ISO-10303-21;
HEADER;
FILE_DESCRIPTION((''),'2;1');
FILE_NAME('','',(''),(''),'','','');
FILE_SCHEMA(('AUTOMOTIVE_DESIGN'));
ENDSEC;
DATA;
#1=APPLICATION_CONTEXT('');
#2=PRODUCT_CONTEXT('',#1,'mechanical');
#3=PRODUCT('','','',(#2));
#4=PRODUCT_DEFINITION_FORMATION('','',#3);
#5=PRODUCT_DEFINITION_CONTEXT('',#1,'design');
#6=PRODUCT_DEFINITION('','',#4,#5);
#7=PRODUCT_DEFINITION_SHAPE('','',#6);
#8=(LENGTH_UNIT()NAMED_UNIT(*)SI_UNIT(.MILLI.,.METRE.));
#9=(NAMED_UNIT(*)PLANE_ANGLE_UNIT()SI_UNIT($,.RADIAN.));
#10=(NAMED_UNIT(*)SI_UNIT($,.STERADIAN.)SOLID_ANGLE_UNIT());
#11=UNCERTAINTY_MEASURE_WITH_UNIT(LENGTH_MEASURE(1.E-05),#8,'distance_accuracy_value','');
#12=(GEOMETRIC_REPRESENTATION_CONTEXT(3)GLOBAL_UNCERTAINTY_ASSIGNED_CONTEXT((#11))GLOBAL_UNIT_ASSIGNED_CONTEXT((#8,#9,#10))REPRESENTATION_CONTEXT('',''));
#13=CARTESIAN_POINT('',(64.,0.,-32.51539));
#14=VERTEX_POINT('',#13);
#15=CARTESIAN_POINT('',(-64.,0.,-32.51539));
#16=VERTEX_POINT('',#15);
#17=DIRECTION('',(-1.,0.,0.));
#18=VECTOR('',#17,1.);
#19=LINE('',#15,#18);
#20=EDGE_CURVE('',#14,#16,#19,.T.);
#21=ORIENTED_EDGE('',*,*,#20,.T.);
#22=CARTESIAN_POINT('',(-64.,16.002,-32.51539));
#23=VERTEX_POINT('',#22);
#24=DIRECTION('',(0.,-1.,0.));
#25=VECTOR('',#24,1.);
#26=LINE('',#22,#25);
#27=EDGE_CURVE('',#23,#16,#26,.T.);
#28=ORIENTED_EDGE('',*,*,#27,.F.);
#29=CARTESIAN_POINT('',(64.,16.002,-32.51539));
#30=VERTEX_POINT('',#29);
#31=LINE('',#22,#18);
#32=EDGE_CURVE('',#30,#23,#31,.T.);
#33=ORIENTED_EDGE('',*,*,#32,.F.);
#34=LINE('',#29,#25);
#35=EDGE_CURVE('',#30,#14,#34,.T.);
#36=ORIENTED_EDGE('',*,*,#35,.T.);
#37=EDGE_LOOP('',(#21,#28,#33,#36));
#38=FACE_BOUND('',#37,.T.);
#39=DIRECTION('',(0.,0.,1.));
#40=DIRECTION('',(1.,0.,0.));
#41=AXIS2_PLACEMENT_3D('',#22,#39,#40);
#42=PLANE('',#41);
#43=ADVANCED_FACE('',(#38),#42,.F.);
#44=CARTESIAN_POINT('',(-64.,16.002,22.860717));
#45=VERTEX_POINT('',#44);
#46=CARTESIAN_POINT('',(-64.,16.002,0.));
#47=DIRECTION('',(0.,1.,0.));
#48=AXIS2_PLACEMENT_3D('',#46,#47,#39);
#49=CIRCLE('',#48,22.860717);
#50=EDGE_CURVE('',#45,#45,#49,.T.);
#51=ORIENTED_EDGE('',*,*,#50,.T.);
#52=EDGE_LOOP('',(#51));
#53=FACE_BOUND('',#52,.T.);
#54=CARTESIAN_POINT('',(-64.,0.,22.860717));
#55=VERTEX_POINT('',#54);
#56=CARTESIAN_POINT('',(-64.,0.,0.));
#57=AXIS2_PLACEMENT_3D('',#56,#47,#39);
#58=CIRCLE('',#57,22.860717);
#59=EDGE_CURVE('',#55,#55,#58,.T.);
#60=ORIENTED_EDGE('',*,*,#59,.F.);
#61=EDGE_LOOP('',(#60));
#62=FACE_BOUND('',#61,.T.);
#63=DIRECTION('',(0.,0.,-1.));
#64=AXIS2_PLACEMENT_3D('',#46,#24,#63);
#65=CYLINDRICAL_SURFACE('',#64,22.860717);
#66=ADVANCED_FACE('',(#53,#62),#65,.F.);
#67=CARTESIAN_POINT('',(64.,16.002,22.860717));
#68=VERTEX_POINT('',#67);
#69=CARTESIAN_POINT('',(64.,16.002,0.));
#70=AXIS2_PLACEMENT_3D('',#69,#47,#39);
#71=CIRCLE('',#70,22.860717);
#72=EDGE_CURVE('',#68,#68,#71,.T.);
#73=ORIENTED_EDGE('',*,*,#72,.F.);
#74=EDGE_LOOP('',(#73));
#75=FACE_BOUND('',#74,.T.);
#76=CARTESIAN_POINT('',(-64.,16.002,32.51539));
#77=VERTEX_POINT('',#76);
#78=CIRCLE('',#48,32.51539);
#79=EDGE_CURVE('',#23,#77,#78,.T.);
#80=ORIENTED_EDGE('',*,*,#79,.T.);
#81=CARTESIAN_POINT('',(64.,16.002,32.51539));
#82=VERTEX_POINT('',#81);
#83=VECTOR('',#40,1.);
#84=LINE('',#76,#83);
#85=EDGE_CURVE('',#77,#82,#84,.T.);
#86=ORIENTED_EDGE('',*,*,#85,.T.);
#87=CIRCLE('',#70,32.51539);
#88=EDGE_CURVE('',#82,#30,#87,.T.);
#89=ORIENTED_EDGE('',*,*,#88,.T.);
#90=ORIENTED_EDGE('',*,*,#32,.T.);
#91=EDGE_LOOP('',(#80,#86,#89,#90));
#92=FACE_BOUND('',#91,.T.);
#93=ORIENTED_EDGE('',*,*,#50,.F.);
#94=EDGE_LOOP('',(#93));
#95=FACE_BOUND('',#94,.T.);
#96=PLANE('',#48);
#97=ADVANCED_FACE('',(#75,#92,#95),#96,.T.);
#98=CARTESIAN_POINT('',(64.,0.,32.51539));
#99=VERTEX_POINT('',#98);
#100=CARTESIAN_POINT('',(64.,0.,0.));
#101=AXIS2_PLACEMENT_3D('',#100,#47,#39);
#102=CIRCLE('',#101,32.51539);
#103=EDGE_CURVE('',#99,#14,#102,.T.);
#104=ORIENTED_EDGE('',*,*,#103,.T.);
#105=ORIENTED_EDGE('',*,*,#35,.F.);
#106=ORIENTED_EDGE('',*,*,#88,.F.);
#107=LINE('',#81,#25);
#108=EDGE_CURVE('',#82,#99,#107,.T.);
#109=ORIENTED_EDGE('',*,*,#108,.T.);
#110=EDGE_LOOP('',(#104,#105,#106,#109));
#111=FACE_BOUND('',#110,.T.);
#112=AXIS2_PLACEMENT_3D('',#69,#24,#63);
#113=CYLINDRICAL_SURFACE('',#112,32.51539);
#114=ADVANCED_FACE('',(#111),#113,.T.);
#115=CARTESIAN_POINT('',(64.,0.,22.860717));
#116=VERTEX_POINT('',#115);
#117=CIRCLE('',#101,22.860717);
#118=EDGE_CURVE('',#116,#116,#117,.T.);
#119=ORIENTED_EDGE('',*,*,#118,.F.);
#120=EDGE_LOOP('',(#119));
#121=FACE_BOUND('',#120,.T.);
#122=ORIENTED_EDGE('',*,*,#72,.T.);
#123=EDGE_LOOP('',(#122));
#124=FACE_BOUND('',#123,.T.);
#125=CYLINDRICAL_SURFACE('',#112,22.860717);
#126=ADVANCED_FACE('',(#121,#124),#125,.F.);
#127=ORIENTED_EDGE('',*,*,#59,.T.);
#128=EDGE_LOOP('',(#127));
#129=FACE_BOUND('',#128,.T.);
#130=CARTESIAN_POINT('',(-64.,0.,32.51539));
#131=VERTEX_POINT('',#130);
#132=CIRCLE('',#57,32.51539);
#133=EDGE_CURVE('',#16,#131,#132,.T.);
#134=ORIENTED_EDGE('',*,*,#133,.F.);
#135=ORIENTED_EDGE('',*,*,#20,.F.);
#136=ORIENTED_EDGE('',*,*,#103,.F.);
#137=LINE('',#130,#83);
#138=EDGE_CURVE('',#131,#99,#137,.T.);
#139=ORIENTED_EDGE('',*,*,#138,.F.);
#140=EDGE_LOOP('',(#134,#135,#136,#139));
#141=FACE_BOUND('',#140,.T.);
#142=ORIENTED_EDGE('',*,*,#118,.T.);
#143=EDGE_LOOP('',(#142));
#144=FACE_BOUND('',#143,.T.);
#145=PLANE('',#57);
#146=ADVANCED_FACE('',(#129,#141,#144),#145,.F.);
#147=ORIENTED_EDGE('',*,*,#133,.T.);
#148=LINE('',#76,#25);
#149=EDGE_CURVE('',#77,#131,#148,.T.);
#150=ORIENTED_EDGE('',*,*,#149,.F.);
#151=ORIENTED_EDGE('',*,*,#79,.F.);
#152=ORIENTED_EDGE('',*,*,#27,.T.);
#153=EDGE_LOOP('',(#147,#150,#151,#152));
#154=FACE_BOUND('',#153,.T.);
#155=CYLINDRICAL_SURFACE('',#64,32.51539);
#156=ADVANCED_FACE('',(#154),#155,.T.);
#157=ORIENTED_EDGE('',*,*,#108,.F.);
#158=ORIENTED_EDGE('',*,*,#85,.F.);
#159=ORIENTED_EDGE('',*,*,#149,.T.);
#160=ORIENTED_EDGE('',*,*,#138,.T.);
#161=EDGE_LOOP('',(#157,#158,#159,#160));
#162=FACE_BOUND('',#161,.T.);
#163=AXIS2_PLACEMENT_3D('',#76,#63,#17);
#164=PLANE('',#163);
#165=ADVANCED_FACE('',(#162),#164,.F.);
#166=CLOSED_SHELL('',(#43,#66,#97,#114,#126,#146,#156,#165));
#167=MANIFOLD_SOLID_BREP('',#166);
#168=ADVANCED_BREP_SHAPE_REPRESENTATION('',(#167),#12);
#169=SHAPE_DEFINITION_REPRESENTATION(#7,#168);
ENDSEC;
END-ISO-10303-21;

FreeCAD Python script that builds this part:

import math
import FreeCAD as App
import Part
import Sketcher

V = App.Vector

doc = App.newDocument("Part")
body = doc.addObject("PartDesign::Body", "Body")

# Sketch on XZ plane
sketch1 = doc.addObject("Sketcher::SketchObject", "Sketch")
body.addObject(sketch1)
sketch1.AttachmentSupport = (doc.XZ_Plane, [""])
sketch1.MapMode = "FlatFace"
sketch1.addGeometry(Part.LineSegment(V(64, -32.51539, 0), V(-64, -32.51539, 0)), False)
sketch1.addGeometry(Part.ArcOfCircle(Part.Circle(V(-64, 0, 0), V(0, 0, 1), 32.51539), math.radians(90), math.radians(270)), False)
sketch1.addGeometry(Part.LineSegment(V(-64, 32.51539, 0), V(64, 32.51539, 0)), False)
sketch1.addGeometry(Part.ArcOfCircle(Part.Circle(V(64, 0, 0), V(0, 0, 1), 32.51539), math.radians(-90), math.radians(90)), False)
sketch1.addGeometry(Part.Circle(V(64, 0, 0), V(0, 0, 1), 22.860717), False)
sketch1.addGeometry(Part.Circle(V(-64, 0, 0), V(0, 0, 1), 22.860717), False)
sketch1.addConstraint(Sketcher.Constraint("Tangent", 0, 2, 1, 2))
sketch1.addConstraint(Sketcher.Constraint("Tangent", 1, 1, 2, 1))
sketch1.addConstraint(Sketcher.Constraint("Tangent", 2, 2, 3, 2))
sketch1.addConstraint(Sketcher.Constraint("Tangent", 3, 1, 0, 1))
sketch1.addConstraint(Sketcher.Constraint("Horizontal", 0))
sketch1.addConstraint(Sketcher.Constraint("Horizontal", 2))
sketch1.addConstraint(Sketcher.Constraint("Coincident", 4, 3, 3, 3))
sketch1.addConstraint(Sketcher.Constraint("Coincident", 5, 3, 1, 3))
sketch1.addConstraint(Sketcher.Constraint("Equal", 4, 5))
sketch1.addConstraint(Sketcher.Constraint("Symmetric", 1, 3, 3, 3, -1, 1))
sketch1.addConstraint(Sketcher.Constraint("DistanceX", 0, 2, 0, 1, 128.0))
sketch1.addConstraint(Sketcher.Constraint("Radius", 1, 32.51539))
sketch1.addConstraint(Sketcher.Constraint("Diameter", 4, 45.721434))
pad1 = doc.addObject("PartDesign::Pad", "Pad")
body.addObject(pad1)
pad1.Profile = sketch1
pad1.Length = 16.002
pad1.Reversed = True

doc.recompute()
